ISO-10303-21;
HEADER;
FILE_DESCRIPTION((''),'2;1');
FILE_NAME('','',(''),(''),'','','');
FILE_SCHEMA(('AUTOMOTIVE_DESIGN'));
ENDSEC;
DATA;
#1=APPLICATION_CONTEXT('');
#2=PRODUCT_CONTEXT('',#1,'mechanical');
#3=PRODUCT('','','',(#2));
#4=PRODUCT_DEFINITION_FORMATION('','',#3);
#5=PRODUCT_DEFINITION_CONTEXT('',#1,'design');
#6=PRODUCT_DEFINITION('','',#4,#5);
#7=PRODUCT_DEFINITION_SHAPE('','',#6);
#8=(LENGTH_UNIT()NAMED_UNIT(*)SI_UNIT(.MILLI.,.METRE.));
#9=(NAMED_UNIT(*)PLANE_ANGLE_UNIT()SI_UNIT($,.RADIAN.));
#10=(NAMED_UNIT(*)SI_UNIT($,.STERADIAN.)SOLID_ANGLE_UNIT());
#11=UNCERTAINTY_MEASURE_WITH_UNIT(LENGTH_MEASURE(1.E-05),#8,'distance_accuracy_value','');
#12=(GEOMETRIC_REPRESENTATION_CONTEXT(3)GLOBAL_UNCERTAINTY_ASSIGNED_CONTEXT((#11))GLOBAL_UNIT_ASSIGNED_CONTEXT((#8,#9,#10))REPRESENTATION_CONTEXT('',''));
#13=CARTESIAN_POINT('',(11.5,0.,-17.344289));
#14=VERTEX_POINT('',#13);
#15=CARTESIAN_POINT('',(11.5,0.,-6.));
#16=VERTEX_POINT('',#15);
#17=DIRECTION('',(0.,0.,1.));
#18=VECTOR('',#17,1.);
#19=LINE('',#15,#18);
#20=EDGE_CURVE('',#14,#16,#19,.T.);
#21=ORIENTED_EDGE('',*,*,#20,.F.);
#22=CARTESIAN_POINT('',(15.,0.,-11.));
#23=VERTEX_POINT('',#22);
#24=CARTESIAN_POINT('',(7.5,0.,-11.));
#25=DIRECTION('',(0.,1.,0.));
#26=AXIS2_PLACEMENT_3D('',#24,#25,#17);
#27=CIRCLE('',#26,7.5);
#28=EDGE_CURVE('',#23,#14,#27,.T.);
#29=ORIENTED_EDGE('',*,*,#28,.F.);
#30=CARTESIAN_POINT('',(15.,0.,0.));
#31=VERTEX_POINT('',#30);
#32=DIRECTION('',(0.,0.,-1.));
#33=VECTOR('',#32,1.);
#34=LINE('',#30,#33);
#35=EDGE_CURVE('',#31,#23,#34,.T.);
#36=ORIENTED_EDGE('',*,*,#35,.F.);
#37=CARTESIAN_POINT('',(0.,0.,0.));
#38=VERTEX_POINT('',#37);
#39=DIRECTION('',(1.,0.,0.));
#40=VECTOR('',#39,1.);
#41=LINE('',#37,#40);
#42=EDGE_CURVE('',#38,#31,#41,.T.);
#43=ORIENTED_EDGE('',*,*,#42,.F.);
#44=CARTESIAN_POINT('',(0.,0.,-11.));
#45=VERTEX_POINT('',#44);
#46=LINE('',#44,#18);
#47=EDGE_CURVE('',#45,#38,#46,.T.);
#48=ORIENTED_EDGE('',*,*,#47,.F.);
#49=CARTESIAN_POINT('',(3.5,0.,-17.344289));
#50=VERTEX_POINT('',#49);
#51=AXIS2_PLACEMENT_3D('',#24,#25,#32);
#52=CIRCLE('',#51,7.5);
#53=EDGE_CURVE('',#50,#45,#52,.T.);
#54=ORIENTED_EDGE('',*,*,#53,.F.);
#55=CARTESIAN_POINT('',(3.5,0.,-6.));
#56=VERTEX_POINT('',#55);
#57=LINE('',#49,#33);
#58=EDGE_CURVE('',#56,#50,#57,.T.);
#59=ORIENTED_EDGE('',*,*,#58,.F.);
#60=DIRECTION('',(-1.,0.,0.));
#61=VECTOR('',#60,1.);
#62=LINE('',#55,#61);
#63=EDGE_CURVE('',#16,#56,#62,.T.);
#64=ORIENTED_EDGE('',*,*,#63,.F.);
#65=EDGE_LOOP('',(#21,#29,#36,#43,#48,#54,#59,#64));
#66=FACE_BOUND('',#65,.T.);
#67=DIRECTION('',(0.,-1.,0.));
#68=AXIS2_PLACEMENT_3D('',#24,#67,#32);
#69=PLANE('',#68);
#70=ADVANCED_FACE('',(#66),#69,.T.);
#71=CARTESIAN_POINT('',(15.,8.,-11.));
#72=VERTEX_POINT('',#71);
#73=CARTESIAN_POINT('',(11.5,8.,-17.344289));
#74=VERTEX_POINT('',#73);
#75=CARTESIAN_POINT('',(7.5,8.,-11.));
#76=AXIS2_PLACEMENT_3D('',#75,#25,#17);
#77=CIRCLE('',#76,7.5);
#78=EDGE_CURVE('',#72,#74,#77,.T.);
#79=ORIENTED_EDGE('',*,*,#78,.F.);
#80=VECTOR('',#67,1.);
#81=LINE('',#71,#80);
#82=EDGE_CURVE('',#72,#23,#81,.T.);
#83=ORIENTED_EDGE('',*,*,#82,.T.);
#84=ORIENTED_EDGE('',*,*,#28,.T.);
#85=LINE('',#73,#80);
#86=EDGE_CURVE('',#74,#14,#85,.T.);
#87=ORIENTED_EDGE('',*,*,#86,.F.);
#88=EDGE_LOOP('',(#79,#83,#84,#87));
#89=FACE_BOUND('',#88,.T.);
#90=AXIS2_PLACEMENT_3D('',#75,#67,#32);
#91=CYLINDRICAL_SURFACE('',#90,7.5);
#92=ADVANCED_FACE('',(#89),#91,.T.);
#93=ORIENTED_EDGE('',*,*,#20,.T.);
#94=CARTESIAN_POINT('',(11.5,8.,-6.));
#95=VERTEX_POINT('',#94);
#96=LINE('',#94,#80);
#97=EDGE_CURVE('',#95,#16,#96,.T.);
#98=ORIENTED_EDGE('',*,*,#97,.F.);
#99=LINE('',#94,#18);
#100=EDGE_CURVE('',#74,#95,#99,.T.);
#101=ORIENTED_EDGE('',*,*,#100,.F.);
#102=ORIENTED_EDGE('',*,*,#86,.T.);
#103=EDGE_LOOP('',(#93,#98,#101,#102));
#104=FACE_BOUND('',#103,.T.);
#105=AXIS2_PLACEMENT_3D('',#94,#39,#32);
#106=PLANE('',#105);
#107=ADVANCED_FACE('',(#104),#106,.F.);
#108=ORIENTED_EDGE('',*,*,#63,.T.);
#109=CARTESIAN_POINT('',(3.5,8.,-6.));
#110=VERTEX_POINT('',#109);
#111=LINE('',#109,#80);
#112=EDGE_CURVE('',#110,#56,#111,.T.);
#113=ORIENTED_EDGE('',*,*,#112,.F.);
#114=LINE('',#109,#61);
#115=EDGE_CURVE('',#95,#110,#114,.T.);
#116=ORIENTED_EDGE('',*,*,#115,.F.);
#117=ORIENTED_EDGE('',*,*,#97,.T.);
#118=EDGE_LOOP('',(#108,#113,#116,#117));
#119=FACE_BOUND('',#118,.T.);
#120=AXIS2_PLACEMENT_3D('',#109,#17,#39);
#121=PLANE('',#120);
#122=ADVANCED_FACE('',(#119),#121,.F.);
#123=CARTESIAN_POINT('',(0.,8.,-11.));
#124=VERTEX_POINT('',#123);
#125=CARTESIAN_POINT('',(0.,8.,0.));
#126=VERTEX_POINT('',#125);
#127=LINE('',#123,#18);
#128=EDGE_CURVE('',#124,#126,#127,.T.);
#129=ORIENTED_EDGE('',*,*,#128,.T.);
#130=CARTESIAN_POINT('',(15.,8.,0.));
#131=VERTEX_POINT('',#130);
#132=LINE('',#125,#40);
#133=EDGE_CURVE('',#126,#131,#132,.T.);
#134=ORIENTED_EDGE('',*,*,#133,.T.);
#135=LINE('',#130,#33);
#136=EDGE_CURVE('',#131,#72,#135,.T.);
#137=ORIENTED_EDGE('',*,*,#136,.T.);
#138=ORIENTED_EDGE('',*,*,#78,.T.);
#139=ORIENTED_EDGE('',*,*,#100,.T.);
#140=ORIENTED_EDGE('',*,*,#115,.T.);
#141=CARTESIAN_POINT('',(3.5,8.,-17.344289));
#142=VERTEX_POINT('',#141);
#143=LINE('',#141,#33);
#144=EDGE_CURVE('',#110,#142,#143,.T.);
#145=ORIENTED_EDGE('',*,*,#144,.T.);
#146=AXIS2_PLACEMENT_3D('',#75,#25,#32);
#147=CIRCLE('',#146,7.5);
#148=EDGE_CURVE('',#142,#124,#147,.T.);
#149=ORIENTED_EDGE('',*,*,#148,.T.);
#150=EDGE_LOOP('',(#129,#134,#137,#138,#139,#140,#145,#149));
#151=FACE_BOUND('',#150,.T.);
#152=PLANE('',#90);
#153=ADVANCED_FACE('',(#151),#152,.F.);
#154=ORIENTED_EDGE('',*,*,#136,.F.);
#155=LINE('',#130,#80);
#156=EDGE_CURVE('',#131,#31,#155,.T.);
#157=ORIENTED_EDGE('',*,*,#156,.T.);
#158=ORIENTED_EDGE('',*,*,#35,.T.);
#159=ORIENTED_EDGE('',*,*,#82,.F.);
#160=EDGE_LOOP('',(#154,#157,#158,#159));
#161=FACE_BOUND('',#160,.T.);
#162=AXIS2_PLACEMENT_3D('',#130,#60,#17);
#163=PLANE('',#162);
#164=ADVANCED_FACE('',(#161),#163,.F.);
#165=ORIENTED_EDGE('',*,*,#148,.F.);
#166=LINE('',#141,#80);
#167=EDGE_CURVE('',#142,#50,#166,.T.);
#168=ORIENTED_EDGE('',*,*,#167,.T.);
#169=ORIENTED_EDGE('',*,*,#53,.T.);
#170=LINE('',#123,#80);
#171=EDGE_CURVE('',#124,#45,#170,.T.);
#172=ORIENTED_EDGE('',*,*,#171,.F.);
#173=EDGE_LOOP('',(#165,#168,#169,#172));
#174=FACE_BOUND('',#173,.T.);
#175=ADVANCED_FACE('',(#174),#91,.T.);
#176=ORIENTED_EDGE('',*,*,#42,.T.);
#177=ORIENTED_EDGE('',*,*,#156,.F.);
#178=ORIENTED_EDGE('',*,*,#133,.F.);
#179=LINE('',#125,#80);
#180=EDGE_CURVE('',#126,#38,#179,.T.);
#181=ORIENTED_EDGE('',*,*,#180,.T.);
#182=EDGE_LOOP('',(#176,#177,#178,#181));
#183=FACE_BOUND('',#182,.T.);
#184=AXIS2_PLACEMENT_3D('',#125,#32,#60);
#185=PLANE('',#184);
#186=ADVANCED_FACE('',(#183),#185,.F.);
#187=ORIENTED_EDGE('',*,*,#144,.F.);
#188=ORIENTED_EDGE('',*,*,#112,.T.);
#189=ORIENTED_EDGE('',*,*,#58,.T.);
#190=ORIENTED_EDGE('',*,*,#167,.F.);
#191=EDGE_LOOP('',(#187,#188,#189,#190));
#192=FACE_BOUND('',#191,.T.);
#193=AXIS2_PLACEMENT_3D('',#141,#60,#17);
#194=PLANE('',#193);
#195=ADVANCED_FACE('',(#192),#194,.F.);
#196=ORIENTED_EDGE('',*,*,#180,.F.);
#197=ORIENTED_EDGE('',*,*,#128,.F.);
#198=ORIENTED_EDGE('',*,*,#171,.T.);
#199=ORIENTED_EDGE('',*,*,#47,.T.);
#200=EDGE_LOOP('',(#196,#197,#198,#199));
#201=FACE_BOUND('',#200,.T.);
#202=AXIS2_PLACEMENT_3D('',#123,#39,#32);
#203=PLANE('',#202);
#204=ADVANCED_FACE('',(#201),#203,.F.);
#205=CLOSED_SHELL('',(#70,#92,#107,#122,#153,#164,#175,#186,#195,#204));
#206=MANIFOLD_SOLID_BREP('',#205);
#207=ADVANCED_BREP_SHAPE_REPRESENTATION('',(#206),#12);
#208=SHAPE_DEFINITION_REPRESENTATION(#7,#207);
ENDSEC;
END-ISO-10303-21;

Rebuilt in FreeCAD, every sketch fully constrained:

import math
import FreeCAD as App
import Part
import Sketcher

V = App.Vector
Q = App.Units.Quantity

doc = App.newDocument("Part")
body = doc.addObject("PartDesign::Body", "Body")

sketch1 = doc.addObject("Sketcher::SketchObject", "Sketch")
body.addObject(sketch1)
sketch1.AttachmentSupport = (doc.XZ_Plane, [""])
sketch1.MapMode = "FlatFace"
sketch1.addGeometry([
    Part.LineSegment(V(0, -11, 0), V(0, 0, 0)),
    Part.LineSegment(V(0, 0, 0), V(15, 0, 0)),
    Part.LineSegment(V(15, 0, 0), V(15, -11, 0)),
    Part.ArcOfCircle(Part.Circle(V(8, -11, 0), V(0, 0, 1), 7), math.radians(-58), math.radians(0)),
    Part.LineSegment(V(12, -17, 0), V(12, -6, 0)),
    Part.LineSegment(V(12, -6, 0), V(4, -6, 0)),
    Part.LineSegment(V(4, -6, 0), V(4, -17, 0)),
    Part.ArcOfCircle(Part.Circle(V(7, -11, 0), V(0, 0, 1), 7), math.radians(180), math.radians(238)),
], False)
sketch1.addConstraint([
    Sketcher.Constraint("Coincident", 0, 2, 1, 1),
    Sketcher.Constraint("Coincident", 1, 2, 2, 1),
    Sketcher.Constraint("Tangent", 2, 2, 3, 2),
    Sketcher.Constraint("Coincident", 3, 1, 4, 1),
    Sketcher.Constraint("Coincident", 4, 2, 5, 1),
    Sketcher.Constraint("Coincident", 5, 2, 6, 1),
    Sketcher.Constraint("Coincident", 6, 2, 7, 2),
    Sketcher.Constraint("Tangent", 7, 1, 0, 1),
    Sketcher.Constraint("Vertical", 0),
    Sketcher.Constraint("Horizontal", 1),
    Sketcher.Constraint("Vertical", 2),
    Sketcher.Constraint("Vertical", 4),
    Sketcher.Constraint("Horizontal", 5),
    Sketcher.Constraint("Vertical", 6),
    Sketcher.Constraint("Coincident", 0, 2, -1, 1),
    Sketcher.Constraint("Coincident", 7, 3, 3, 3),
    Sketcher.Constraint("Equal", 3, 7),
    Sketcher.Constraint("Horizontal", 3, 1, 6, 2),
    Sketcher.Constraint("Radius", 3, Q("7.5 mm")),
    Sketcher.Constraint("DistanceX", 5, 2, 5, 1, Q("8 mm")),
    Sketcher.Constraint("DistanceY", 0, 1, 0, 2, Q("11 mm")),
    Sketcher.Constraint("DistanceY", 4, 2, -1, 1, Q("6 mm")),
])
pad1 = doc.addObject("PartDesign::Pad", "Pad")
body.addObject(pad1)
pad1.Profile = sketch1
pad1.Length = 8
pad1.Reversed = True

doc.recompute()
